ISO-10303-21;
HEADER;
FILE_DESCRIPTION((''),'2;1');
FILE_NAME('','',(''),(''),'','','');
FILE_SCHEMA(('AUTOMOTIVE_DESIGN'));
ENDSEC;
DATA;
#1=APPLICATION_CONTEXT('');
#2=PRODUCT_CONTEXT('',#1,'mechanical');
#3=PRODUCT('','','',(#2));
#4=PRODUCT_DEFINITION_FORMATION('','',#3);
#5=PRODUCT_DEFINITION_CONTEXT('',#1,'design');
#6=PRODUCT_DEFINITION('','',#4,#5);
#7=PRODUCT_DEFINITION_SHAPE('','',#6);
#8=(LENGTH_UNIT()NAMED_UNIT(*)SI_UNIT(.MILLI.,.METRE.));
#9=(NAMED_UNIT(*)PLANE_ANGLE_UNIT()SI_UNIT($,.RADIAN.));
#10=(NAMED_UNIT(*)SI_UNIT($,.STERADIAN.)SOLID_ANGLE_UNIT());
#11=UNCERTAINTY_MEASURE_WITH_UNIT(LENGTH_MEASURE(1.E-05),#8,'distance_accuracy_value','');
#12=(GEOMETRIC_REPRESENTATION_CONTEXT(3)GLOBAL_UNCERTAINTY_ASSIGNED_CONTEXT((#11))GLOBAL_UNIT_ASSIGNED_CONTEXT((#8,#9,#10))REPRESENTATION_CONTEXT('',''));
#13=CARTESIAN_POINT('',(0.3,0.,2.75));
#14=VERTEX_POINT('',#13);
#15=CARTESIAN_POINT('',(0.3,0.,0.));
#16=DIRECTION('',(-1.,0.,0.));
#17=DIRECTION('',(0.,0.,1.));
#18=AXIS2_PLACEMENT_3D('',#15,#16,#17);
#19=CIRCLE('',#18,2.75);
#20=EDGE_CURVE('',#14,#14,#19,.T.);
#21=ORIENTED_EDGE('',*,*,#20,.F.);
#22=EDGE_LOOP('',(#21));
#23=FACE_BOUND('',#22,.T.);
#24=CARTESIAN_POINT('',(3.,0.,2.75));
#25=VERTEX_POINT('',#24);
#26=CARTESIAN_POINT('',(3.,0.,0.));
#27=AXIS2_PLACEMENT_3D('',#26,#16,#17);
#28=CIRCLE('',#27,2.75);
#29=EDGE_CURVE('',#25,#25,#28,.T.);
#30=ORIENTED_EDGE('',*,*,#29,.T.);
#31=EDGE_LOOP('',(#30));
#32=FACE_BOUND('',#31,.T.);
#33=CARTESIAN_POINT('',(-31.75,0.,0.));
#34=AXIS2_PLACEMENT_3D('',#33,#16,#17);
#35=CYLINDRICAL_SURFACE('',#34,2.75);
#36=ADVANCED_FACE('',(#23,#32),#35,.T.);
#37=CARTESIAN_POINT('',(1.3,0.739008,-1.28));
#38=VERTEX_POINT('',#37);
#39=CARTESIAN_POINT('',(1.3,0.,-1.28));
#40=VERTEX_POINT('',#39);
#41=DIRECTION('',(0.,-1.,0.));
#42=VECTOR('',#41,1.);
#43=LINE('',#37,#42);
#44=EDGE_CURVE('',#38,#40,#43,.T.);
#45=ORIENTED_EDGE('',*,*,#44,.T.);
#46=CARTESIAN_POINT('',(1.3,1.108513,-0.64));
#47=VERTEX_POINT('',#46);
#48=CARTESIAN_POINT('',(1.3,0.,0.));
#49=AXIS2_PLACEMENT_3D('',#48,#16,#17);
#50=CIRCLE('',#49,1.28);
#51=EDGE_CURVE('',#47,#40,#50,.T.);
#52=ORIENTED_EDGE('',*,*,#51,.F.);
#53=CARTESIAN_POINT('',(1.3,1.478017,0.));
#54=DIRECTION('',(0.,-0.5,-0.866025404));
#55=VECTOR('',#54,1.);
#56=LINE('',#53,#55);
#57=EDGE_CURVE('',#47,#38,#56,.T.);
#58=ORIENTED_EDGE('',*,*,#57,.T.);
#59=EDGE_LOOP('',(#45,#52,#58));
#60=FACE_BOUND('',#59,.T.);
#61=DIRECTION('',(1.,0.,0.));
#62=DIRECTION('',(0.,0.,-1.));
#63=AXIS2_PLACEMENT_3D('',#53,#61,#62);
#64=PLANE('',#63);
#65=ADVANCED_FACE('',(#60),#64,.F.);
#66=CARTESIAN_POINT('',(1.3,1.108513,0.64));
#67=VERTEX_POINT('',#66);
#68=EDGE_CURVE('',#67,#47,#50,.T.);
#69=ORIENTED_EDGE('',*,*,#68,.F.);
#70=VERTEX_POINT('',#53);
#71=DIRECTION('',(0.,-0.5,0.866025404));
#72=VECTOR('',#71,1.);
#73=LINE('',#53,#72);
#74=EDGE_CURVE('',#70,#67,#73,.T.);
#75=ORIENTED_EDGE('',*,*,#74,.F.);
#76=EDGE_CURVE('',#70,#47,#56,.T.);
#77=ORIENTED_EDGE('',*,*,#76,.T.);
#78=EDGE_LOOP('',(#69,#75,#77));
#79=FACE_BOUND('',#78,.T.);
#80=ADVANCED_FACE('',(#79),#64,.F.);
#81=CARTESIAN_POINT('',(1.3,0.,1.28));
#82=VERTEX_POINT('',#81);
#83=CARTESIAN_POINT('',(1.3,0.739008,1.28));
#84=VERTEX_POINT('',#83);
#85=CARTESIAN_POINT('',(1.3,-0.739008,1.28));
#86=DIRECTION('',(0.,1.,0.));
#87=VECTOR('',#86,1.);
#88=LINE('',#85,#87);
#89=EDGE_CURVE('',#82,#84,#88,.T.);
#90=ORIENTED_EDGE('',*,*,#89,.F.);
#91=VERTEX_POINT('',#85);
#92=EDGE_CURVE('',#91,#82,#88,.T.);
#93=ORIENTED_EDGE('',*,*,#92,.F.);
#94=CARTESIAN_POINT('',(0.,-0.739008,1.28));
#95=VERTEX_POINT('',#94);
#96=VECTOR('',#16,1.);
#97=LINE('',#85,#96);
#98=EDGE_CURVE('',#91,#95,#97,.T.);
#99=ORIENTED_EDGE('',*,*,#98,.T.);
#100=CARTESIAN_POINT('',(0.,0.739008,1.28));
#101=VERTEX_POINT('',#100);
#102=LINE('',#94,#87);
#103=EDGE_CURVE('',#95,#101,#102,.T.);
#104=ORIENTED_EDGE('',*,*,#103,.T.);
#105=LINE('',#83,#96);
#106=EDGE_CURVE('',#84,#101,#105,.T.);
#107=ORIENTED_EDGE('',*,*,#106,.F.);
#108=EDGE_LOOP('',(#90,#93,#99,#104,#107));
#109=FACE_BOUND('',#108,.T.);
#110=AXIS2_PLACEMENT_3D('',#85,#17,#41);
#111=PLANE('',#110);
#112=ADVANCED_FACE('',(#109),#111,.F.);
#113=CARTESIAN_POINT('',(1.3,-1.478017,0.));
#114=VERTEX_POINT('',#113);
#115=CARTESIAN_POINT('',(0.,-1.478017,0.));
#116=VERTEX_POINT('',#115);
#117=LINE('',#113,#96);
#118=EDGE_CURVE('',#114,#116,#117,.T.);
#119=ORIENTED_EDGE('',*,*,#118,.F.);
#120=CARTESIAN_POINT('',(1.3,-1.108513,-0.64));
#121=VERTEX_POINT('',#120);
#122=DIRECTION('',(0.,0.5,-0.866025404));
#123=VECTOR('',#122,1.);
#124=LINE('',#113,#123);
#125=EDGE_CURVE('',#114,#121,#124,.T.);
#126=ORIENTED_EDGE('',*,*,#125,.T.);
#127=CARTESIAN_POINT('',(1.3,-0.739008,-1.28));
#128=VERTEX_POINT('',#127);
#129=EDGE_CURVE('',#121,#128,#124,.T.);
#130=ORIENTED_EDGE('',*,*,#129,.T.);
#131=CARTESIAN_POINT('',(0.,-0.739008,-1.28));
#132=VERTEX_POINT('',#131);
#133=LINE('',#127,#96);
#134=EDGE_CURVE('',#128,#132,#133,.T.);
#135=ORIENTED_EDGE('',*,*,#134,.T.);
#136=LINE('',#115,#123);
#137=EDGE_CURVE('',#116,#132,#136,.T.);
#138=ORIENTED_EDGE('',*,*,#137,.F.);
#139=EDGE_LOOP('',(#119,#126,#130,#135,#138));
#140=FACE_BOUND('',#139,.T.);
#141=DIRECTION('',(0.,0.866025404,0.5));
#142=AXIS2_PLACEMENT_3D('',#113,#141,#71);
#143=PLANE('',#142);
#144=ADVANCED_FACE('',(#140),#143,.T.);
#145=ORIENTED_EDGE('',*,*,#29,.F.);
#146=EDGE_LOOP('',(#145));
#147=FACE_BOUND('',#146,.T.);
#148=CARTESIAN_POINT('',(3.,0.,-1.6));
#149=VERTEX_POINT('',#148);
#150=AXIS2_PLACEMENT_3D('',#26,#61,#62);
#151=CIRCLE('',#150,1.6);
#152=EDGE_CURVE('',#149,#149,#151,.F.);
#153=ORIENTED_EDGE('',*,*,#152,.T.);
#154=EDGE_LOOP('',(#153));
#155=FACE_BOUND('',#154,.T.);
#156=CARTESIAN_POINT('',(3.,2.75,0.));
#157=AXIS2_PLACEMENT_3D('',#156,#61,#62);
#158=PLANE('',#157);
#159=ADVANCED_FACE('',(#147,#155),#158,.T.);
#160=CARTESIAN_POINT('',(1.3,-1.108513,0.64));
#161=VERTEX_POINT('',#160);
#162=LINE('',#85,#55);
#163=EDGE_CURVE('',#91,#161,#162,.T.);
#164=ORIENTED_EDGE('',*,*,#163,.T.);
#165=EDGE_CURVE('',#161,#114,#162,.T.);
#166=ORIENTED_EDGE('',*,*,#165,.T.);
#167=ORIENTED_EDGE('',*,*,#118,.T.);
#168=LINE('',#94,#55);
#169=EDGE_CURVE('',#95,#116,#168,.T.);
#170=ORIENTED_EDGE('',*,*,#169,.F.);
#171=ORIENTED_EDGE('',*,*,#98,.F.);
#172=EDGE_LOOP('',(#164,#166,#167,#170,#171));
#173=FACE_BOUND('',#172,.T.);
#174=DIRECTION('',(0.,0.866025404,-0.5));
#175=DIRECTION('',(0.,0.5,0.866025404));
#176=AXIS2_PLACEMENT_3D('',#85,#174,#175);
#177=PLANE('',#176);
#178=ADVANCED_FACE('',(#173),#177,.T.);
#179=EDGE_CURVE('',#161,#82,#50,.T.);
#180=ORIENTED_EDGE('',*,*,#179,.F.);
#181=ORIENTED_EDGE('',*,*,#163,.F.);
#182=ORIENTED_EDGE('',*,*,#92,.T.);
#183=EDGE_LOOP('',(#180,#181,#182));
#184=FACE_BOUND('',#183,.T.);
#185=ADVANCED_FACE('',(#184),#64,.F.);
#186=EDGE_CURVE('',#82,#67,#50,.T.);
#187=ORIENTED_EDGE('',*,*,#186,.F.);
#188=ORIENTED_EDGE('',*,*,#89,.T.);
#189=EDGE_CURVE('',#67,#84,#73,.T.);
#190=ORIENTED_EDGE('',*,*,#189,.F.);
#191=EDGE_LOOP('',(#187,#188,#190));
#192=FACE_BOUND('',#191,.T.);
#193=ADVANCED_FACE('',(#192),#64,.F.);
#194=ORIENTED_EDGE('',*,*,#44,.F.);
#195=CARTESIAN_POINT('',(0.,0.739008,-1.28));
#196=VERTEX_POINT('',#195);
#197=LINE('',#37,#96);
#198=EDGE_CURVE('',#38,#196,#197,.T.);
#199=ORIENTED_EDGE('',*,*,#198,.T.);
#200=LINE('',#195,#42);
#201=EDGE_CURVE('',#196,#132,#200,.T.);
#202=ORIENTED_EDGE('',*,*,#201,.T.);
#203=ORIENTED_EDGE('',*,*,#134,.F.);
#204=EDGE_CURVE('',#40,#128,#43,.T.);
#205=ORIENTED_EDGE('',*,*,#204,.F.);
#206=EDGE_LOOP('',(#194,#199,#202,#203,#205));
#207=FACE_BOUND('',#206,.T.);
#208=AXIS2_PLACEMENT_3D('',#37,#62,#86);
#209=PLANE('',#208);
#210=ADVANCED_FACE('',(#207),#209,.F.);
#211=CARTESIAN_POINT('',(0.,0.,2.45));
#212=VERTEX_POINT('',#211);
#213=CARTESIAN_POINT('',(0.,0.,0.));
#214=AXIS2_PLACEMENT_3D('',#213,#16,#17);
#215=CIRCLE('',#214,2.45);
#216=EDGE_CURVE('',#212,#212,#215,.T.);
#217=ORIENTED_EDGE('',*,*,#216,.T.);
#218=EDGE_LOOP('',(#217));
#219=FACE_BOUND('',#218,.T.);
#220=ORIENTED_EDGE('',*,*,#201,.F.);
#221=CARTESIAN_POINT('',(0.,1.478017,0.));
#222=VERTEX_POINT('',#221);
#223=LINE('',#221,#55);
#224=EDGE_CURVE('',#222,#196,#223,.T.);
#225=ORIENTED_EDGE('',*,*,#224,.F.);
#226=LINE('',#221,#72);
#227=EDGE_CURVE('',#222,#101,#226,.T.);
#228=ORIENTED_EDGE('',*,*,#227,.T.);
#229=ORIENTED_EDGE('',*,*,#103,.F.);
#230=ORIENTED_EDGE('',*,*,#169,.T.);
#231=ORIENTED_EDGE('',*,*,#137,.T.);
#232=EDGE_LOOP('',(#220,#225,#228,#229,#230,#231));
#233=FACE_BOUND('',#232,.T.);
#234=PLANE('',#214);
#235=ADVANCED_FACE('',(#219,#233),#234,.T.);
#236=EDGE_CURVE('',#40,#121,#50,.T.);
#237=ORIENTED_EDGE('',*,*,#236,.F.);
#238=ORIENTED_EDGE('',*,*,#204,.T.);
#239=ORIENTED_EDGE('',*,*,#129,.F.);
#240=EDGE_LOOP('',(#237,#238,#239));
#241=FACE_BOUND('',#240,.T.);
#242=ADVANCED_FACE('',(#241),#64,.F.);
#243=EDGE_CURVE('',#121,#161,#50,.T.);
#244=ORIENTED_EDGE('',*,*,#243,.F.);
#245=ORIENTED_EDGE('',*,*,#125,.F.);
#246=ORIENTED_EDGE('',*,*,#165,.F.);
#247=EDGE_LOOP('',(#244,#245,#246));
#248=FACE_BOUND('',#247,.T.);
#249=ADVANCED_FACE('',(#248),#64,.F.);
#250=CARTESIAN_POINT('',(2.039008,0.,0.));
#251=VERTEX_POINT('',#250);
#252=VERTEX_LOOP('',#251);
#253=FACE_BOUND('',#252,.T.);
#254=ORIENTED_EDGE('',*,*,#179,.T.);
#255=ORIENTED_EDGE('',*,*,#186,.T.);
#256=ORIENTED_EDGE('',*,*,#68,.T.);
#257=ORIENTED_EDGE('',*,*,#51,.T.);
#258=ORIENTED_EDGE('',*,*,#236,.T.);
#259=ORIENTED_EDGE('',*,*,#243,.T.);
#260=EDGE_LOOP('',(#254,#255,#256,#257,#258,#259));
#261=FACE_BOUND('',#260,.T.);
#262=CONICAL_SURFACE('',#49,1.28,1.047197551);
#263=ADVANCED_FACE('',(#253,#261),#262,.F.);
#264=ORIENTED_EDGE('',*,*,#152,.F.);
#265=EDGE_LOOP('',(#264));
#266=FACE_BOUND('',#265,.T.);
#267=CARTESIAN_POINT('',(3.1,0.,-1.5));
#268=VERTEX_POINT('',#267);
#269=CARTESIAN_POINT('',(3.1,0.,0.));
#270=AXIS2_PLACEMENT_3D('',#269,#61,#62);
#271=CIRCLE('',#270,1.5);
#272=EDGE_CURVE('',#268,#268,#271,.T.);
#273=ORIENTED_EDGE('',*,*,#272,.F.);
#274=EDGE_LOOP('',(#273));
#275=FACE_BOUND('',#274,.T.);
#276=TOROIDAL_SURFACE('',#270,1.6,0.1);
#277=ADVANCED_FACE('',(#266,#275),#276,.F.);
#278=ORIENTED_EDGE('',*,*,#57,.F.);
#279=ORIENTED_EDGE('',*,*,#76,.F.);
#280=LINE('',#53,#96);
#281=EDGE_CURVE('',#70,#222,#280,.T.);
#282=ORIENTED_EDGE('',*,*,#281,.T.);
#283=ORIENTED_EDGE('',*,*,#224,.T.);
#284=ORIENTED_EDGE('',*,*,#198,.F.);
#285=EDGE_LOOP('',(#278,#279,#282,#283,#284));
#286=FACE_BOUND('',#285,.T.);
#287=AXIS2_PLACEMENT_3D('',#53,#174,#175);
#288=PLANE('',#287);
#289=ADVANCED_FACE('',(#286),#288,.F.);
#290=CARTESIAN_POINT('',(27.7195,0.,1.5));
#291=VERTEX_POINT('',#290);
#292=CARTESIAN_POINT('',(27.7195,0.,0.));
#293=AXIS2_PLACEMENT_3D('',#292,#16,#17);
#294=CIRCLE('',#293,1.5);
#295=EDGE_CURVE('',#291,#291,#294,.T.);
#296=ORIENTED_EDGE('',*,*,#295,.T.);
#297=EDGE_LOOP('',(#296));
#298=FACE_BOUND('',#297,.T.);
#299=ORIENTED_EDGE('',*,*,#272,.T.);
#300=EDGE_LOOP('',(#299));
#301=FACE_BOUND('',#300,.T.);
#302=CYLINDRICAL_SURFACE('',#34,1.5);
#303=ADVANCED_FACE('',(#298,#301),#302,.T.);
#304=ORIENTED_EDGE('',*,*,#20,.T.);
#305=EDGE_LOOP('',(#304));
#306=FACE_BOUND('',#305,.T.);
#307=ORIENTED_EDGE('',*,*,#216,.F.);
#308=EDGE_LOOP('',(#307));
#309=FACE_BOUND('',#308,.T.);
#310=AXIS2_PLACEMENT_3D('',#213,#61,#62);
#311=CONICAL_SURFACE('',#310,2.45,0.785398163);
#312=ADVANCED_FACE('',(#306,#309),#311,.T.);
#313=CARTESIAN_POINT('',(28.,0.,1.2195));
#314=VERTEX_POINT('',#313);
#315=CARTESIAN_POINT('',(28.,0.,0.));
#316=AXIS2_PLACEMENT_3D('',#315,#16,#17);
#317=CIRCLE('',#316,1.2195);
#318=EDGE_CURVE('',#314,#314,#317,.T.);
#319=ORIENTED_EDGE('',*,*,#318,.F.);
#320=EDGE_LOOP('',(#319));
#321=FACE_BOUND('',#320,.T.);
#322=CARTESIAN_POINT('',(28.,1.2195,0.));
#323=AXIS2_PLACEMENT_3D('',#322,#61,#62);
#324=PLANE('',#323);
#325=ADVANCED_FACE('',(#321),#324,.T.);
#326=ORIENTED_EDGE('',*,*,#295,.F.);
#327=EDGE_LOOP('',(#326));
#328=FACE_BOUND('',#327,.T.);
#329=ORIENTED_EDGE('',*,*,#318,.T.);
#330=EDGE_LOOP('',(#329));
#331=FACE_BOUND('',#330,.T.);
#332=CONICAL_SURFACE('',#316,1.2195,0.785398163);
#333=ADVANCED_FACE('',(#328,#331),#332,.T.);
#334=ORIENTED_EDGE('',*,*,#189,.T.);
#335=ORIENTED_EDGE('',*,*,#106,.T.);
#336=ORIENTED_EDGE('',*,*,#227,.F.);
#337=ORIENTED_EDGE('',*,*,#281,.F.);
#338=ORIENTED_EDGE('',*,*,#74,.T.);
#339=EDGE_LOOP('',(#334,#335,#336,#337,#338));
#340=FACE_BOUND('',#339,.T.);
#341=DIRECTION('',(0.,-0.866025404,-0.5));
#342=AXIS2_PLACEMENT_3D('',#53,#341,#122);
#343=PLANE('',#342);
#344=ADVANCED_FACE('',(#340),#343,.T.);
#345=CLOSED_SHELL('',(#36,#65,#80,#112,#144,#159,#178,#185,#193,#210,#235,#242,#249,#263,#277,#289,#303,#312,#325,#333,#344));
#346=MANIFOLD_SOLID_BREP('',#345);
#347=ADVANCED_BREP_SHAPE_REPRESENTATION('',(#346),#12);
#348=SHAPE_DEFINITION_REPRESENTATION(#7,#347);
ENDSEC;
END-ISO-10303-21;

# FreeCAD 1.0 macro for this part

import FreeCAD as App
import Part
import Sketcher
Q = App.Units.Quantity


def edges_at(feature, points):
    """Names of the edges that pass closest to the given points."""
    edges = feature.Shape.Edges
    near = lambda p: min(range(len(edges)), key=lambda i: edges[i].distToShape(Part.Vertex(*p))[0])
    return sorted({f"Edge{near(p) + 1}" for p in points})

doc = App.newDocument("Part")
body = doc.addObject("PartDesign::Body", "Body")

# Sketch on XY plane
sketch1 = body.newObject("Sketcher::SketchObject", "Sketch")
sketch1.AttachmentSupport = (doc.getObject("XY_Plane"), [""])
sketch1.MapMode = "FlatFace"
sketch1.addGeometry(Part.LineSegment(App.Vector(0, 2.45, 0), App.Vector(0, 0, 0)), False)
sketch1.addGeometry(Part.LineSegment(App.Vector(0, 0, 0), App.Vector(28, 0, 0)), False)
sketch1.addGeometry(Part.LineSegment(App.Vector(28, 0, 0), App.Vector(28, 1.2195, 0)), False)
sketch1.addGeometry(Part.LineSegment(App.Vector(28, 1.2195, 0), App.Vector(27.7195, 1.5, 0)), False)
sketch1.addGeometry(Part.LineSegment(App.Vector(27.7195, 1.5, 0), App.Vector(3, 1.5, 0)), False)
sketch1.addGeometry(Part.LineSegment(App.Vector(3, 1.5, 0), App.Vector(3, 2.75, 0)), False)
sketch1.addGeometry(Part.LineSegment(App.Vector(3, 2.75, 0), App.Vector(0.3, 2.75, 0)), False)
sketch1.addGeometry(Part.LineSegment(App.Vector(0.3, 2.75, 0), App.Vector(0, 2.45, 0)), False)
sketch1.addConstraint(Sketcher.Constraint("Coincident", 0, 2, 1, 1))
sketch1.addConstraint(Sketcher.Constraint("Coincident", 1, 2, 2, 1))
sketch1.addConstraint(Sketcher.Constraint("Coincident", 2, 2, 3, 1))
sketch1.addConstraint(Sketcher.Constraint("Coincident", 3, 2, 4, 1))
sketch1.addConstraint(Sketcher.Constraint("Coincident", 4, 2, 5, 1))
sketch1.addConstraint(Sketcher.Constraint("Coincident", 5, 2, 6, 1))
sketch1.addConstraint(Sketcher.Constraint("Coincident", 6, 2, 7, 1))
sketch1.addConstraint(Sketcher.Constraint("Coincident", 7, 2, 0, 1))
sketch1.addConstraint(Sketcher.Constraint("Vertical", 0))
sketch1.addConstraint(Sketcher.Constraint("Horizontal", 1))
sketch1.addConstraint(Sketcher.Constraint("Vertical", 2))
sketch1.addConstraint(Sketcher.Constraint("Horizontal", 4))
sketch1.addConstraint(Sketcher.Constraint("Vertical", 5))
sketch1.addConstraint(Sketcher.Constraint("Horizontal", 6))
sketch1.addConstraint(Sketcher.Constraint("Coincident", 0, 2, -1, 1))
sketch1.addConstraint(Sketcher.Constraint("Perpendicular", 3, 7))
sketch1.addConstraint(Sketcher.Constraint("DistanceX", 1, 1, 1, 2, Q("28 mm")))
sketch1.addConstraint(Sketcher.Constraint("Angle", 3, Q("135 deg")))
sketch1.addConstraint(Sketcher.Constraint("DistanceX", 6, 2, 6, 1, Q("2.7 mm")))
sketch1.addConstraint(Sketcher.Constraint("DistanceX", -1, 1, 4, 2, Q("3 mm")))
sketch1.addConstraint(Sketcher.Constraint("DistanceY", 0, 2, 0, 1, Q("2.45 mm")))
sketch1.addConstraint(Sketcher.Constraint("DistanceY", 5, 1, 5, 2, Q("1.25 mm")))
sketch1.addConstraint(Sketcher.Constraint("DistanceX", 4, 2, 4, 1, Q("24.7195 mm")))
revolution = body.newObject("PartDesign::Revolution", "Revolution")
revolution.Profile = sketch1
revolution.ReferenceAxis = (sketch1, ["H_Axis"])
revolution.Angle = 360
doc.recompute()

fillet = body.newObject("PartDesign::Fillet", "Fillet")
fillet.Base = (revolution, edges_at(revolution, [(3, -1.5, 0)]))
fillet.Radius = 0.1

# Sketch on XY plane
sketch2 = body.newObject("Sketcher::SketchObject", "Sketch001")
sketch2.AttachmentSupport = (doc.getObject("XY_Plane"), [""])
sketch2.MapMode = "FlatFace"
sketch2.addGeometry(Part.LineSegment(App.Vector(1.3, 1.28, 0), App.Vector(0, 1.28, 0)), False)
sketch2.addGeometry(Part.LineSegment(App.Vector(0, 1.28, 0), App.Vector(0, 0, 0)), False)
sketch2.addGeometry(Part.LineSegment(App.Vector(0, 0, 0), App.Vector(2.039008, 0, 0)), False)
sketch2.addGeometry(Part.LineSegment(App.Vector(2.039008, 0, 0), App.Vector(1.3, 1.28, 0)), False)
sketch2.addConstraint(Sketcher.Constraint("Coincident", 0, 2, 1, 1))
sketch2.addConstraint(Sketcher.Constraint("Coincident", 1, 2, 2, 1))
sketch2.addConstraint(Sketcher.Constraint("Coincident", 2, 2, 3, 1))
sketch2.addConstraint(Sketcher.Constraint("Coincident", 3, 2, 0, 1))
sketch2.addConstraint(Sketcher.Constraint("Horizontal", 0))
sketch2.addConstraint(Sketcher.Constraint("Vertical", 1))
sketch2.addConstraint(Sketcher.Constraint("Horizontal", 2))
sketch2.addConstraint(Sketcher.Constraint("Coincident", 1, 2, -1, 1))
sketch2.addConstraint(Sketcher.Constraint("Angle", 3, Q("120 deg")))
sketch2.addConstraint(Sketcher.Constraint("DistanceX", 0, 2, 0, 1, Q("1.3 mm")))
sketch2.addConstraint(Sketcher.Constraint("DistanceY", 1, 2, 1, 1, Q("1.28 mm")))
groove = body.newObject("PartDesign::Groove", "Groove")
groove.Profile = sketch2
groove.ReferenceAxis = (sketch2, ["H_Axis"])
groove.Angle = 360

# Sketch on YZ plane
sketch3 = body.newObject("Sketcher::SketchObject", "Sketch002")
sketch3.AttachmentSupport = (doc.getObject("YZ_Plane"), [""])
sketch3.MapMode = "FlatFace"
sketch3.addGeometry(Part.LineSegment(App.Vector(1.478017, 0, 0), App.Vector(0.739008, -1.28, 0)), False)
sketch3.addGeometry(Part.LineSegment(App.Vector(0.739008, -1.28, 0), App.Vector(-0.739008, -1.28, 0)), False)
sketch3.addGeometry(Part.LineSegment(App.Vector(-0.739008, -1.28, 0), App.Vector(-1.478017, 0, 0)), False)
sketch3.addGeometry(Part.LineSegment(App.Vector(-1.478017, 0, 0), App.Vector(-0.739008, 1.28, 0)), False)
sketch3.addGeometry(Part.LineSegment(App.Vector(-0.739008, 1.28, 0), App.Vector(0.739008, 1.28, 0)), False)
sketch3.addGeometry(Part.LineSegment(App.Vector(0.739008, 1.28, 0), App.Vector(1.478017, 0, 0)), False)
sketch3.addConstraint(Sketcher.Constraint("Coincident", 0, 2, 1, 1))
sketch3.addConstraint(Sketcher.Constraint("Coincident", 1, 2, 2, 1))
sketch3.addConstraint(Sketcher.Constraint("Coincident", 2, 2, 3, 1))
sketch3.addConstraint(Sketcher.Constraint("Coincident", 3, 2, 4, 1))
sketch3.addConstraint(Sketcher.Constraint("Coincident", 4, 2, 5, 1))
sketch3.addConstraint(Sketcher.Constraint("Coincident", 5, 2, 0, 1))
sketch3.addConstraint(Sketcher.Constraint("Horizontal", 1))
sketch3.addConstraint(Sketcher.Constraint("Horizontal", 4))
sketch3.addConstraint(Sketcher.Constraint("Symmetric", 0, 2, 3, 2, -1, 1))
sketch3.addConstraint(Sketcher.Constraint("Symmetric", 2, 2, 5, 2, -1, 1))
sketch3.addConstraint(Sketcher.Constraint("PointOnObject", 2, 2, -1))
sketch3.addConstraint(Sketcher.Constraint("Parallel", 2, 5))
sketch3.addConstraint(Sketcher.Constraint("Vertical", 1, 2, 3, 2))
sketch3.addConstraint(Sketcher.Constraint("Angle", 0, Q("-120 deg")))
sketch3.addConstraint(Sketcher.Constraint("DistanceY", 0, 2, -1, 1, Q("1.28 mm")))
sketch3.addConstraint(Sketcher.Constraint("DistanceX", 1, 2, 1, 1, Q("1.478017 mm")))
pocket1 = body.newObject("PartDesign::Pocket", "Pocket")
pocket1.Profile = sketch3
pocket1.Length = 1.3
pocket1.Reversed = True

doc.recompute()
